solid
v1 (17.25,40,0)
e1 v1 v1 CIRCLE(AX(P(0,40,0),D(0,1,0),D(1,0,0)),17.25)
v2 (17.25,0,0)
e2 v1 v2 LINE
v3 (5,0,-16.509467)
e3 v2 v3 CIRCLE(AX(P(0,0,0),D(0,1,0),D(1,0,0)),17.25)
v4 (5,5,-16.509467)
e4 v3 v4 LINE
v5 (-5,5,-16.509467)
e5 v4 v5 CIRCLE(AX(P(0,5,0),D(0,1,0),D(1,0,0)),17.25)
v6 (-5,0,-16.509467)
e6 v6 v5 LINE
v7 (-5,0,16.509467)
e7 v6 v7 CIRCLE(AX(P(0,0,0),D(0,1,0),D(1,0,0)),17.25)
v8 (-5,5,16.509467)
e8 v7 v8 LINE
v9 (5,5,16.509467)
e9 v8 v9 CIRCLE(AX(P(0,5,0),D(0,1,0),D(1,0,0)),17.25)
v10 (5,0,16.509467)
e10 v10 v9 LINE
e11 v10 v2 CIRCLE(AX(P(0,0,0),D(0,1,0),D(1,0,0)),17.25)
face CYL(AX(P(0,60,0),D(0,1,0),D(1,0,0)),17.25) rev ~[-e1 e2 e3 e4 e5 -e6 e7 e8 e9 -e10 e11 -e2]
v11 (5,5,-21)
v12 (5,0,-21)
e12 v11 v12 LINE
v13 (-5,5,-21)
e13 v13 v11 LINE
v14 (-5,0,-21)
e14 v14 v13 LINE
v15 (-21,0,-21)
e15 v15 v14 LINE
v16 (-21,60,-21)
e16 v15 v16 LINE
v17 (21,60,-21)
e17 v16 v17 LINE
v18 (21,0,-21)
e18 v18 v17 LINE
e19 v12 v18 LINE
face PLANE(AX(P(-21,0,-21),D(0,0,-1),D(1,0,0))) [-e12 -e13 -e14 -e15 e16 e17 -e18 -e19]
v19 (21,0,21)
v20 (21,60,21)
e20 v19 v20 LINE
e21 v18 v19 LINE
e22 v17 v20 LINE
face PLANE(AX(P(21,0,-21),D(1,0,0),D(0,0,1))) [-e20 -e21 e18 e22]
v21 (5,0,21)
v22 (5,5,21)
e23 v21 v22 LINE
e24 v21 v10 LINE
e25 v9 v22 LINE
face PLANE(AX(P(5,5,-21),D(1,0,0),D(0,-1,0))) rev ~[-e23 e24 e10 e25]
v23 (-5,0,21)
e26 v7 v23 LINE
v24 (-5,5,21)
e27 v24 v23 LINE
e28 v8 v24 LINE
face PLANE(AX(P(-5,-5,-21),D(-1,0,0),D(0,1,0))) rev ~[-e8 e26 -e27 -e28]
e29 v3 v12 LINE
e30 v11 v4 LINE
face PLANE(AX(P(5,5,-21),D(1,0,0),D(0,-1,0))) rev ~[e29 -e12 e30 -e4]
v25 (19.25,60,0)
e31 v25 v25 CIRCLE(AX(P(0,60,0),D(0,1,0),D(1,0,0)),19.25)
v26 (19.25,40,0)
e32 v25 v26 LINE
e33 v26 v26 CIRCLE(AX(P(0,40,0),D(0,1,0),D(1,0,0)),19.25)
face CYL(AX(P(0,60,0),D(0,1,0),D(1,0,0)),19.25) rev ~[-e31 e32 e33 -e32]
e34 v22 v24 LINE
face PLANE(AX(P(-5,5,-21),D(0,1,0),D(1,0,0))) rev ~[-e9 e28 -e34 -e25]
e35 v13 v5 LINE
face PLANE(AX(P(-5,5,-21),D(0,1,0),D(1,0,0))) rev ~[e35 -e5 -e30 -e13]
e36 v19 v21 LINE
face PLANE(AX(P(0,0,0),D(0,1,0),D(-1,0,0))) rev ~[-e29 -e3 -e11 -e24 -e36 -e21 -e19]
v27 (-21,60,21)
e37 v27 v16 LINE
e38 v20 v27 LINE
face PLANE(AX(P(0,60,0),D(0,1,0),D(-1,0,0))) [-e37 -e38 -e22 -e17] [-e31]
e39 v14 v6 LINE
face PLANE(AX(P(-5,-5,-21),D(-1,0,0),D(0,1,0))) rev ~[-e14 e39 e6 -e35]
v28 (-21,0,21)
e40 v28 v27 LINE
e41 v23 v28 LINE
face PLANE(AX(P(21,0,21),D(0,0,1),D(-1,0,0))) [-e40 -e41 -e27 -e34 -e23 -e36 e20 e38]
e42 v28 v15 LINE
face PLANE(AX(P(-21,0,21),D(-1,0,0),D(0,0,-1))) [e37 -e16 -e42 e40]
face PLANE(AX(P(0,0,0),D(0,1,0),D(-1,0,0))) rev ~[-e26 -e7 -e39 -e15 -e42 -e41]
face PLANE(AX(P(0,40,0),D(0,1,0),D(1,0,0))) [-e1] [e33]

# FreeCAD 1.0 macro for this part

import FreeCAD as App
import Part
import Sketcher

V = App.Vector
Q = App.Units.Quantity


def add_polygon(sketch, points):
    """Adds a closed chain of lines whose ends are joined by coincident constraints."""
    first, n = sketch.GeometryCount, len(points)
    for a, b in zip(points, points[1:] + points[:1]):
        sketch.addGeometry(Part.LineSegment(App.Vector(*a, 0), App.Vector(*b, 0)), False)
    for i in range(n):
        sketch.addConstraint(Sketcher.Constraint("Coincident", first + i, 2, first + (i + 1) % n, 1))

doc = App.newDocument("Part")
params = doc.addObject("Spreadsheet::Sheet", "Params")
for row, (alias, value) in enumerate([
    ("sketch1_width", "42 mm"),
    ("pad1_length", "60 mm"),
    ("sketch2_diameter", "34.5 mm"),
    ("sketch3_diameter", "38.5 mm"),
    ("pocket2_length", "20 mm"),
    ("sketch4_width", "10 mm"),
], start=1):
    params.set(f"A{row}", alias)
    params.set(f"B{row}", "=" + value)
    params.setAlias(f"B{row}", alias)

body = doc.addObject("PartDesign::Body", "Body")

sketch1 = doc.addObject("Sketcher::SketchObject", "Sketch")
body.addObject(sketch1)
sketch1.AttachmentSupport = (doc.XZ_Plane, [""])
sketch1.MapMode = "FlatFace"
add_polygon(sketch1, [(-21, 21), (21, 21), (21, -21), (-21, -21)])
sketch1.addConstraint([
    Sketcher.Constraint("Horizontal", 0),
    Sketcher.Constraint("Vertical", 1),
    Sketcher.Constraint("Horizontal", 2),
    Sketcher.Constraint("Vertical", 3),
    Sketcher.Constraint("Symmetric", 0, 2, 2, 2, -1, 1),
    Sketcher.Constraint("Equal", 2, 1),
    Sketcher.Constraint("DistanceX", 0, 1, 0, 2, Q("42 mm")),
])
sketch1.setExpression("Constraints[10]", "Params.sketch1_width")
pad1 = doc.addObject("PartDesign::Pad", "Pad")
body.addObject(pad1)
pad1.Profile = sketch1
pad1.setExpression("Length", "Params.pad1_length")
pad1.Reversed = True

sketch2 = doc.addObject("Sketcher::SketchObject", "Sketch001")
body.addObject(sketch2)
sketch2.AttachmentSupport = (doc.XZ_Plane, [""])
sketch2.MapMode = "FlatFace"
sketch2.AttachmentOffset = App.Placement(V(0, 0, -60), App.Rotation())
sketch2.addGeometry(Part.Circle(V(0, 0, 0), V(0, 0, 1), 17.25), False)
sketch2.addConstraint([
    Sketcher.Constraint("Coincident", 0, 3, -1, 1),
    Sketcher.Constraint("Diameter", 0, Q("34.5 mm")),
])
sketch2.setExpression("Constraints[1]", "Params.sketch2_diameter")
pocket1 = doc.addObject("PartDesign::Pocket", "Pocket")
body.addObject(pocket1)
pocket1.Profile = sketch2
pocket1.Type = "ThroughAll"
pocket1.Reversed = True

sketch3 = doc.addObject("Sketcher::SketchObject", "Sketch002")
body.addObject(sketch3)
sketch3.AttachmentSupport = (doc.XZ_Plane, [""])
sketch3.MapMode = "FlatFace"
sketch3.AttachmentOffset = App.Placement(V(0, 0, -60), App.Rotation())
sketch3.addGeometry(Part.Circle(V(0, 0, 0), V(0, 0, 1), 19.25), False)
sketch3.addConstraint([
    Sketcher.Constraint("Coincident", 0, 3, -1, 1),
    Sketcher.Constraint("Diameter", 0, Q("38.5 mm")),
])
sketch3.setExpression("Constraints[1]", "Params.sketch3_diameter")
pocket2 = doc.addObject("PartDesign::Pocket", "Pocket001")
body.addObject(pocket2)
pocket2.Profile = sketch3
pocket2.setExpression("Length", "Params.pocket2_length")
pocket2.Reversed = True

sketch4 = doc.addObject("Sketcher::SketchObject", "Sketch003")
body.addObject(sketch4)
sketch4.AttachmentSupport = (doc.XY_Plane, [""])
sketch4.MapMode = "FlatFace"
sketch4.AttachmentOffset = App.Placement(V(0, 0, -21), App.Rotation())
add_polygon(sketch4, [(5, 5), (5, -5), (-5, -5), (-5, 5)])
sketch4.addConstraint([
    Sketcher.Constraint("Vertical", 0),
    Sketcher.Constraint("Horizontal", 1),
    Sketcher.Constraint("Vertical", 2),
    Sketcher.Constraint("Horizontal", 3),
    Sketcher.Constraint("Symmetric", 0, 2, 2, 2, -1, 1),
    Sketcher.Constraint("Equal", 3, 0),
    Sketcher.Constraint("DistanceX", 1, 2, 1, 1, Q("10 mm")),
])
sketch4.setExpression("Constraints[10]", "Params.sketch4_width")
pocket3 = doc.addObject("PartDesign::Pocket", "Pocket002")
body.addObject(pocket3)
pocket3.Profile = sketch4
pocket3.Type = "ThroughAll"
pocket3.Reversed = True

doc.recompute()
